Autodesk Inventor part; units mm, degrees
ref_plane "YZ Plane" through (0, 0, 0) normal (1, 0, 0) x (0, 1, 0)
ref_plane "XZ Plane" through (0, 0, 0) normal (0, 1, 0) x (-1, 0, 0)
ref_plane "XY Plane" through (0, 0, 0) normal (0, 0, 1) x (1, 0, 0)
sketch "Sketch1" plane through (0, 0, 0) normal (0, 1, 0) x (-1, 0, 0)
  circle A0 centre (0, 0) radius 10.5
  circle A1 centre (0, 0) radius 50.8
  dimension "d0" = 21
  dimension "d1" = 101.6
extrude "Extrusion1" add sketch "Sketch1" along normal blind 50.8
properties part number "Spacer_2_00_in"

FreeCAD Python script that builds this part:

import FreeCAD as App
import Part
import Sketcher
from FreeCAD import Vector
Q = App.Units.Quantity

doc = App.newDocument("Part")
body = doc.addObject("PartDesign::Body", "Body")

sketch1 = doc.addObject("Sketcher::SketchObject", "Sketch")
body.addObject(sketch1)
sketch1.AttachmentSupport = (doc.XZ_Plane, [""])
sketch1.MapMode = "FlatFace"
sketch1.addGeometry([
    Part.Circle(Vector(0, 0, 0), Vector(0, 0, 1), 51),
    Part.Circle(Vector(0, 0, 0), Vector(0, 0, 1), 10),
], False)
sketch1.addConstraint([
    Sketcher.Constraint("Coincident", 0, 3, -1, 1),
    Sketcher.Constraint("Coincident", 1, 3, -1, 1),
    Sketcher.Constraint("Diameter", 0, Q("4 in")),
    Sketcher.Constraint("Diameter", 1, 21.0),
])
pad1 = doc.addObject("PartDesign::Pad", "Pad")
body.addObject(pad1)
pad1.Profile = sketch1
pad1.Length = Q("2 in")
pad1.Reversed = True

doc.recompute()
